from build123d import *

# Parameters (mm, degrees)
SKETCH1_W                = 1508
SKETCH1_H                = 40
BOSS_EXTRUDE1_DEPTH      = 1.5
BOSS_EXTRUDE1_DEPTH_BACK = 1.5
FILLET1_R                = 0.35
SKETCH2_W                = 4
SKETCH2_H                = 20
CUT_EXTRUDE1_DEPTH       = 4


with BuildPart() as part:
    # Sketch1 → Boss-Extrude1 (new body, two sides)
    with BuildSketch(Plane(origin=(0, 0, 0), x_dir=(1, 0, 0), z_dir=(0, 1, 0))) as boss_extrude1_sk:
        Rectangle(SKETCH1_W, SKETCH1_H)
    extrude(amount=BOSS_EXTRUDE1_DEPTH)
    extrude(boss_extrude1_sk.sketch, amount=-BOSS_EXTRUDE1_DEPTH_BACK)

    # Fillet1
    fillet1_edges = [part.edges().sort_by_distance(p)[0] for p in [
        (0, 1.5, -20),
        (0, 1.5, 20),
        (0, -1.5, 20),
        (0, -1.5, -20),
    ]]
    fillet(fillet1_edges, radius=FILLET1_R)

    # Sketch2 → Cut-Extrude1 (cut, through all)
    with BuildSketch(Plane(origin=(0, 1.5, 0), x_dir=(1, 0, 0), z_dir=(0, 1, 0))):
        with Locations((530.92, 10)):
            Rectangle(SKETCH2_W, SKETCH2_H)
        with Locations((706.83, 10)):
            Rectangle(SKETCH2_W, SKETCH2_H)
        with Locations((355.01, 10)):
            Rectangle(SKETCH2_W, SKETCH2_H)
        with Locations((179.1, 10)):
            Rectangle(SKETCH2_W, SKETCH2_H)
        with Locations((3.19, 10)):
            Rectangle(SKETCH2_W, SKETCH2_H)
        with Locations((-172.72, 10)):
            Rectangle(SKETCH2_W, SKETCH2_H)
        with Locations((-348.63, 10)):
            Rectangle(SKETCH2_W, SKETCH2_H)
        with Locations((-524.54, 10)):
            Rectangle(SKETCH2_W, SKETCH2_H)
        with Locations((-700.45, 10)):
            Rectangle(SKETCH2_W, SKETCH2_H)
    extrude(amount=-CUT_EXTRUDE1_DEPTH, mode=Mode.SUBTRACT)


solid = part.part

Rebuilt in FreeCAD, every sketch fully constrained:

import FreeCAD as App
import Part
import Sketcher

V = App.Vector
Q = App.Units.Quantity


def edges_at(feature, points):
    """Names of the edges that pass closest to the given points."""
    edges = feature.Shape.Edges
    near = lambda p: min(range(len(edges)), key=lambda i: edges[i].distToShape(Part.Vertex(*p))[0])
    return sorted({f"Edge{near(p) + 1}" for p in points})

doc = App.newDocument("Part")
body = doc.addObject("PartDesign::Body", "Body")

# Sketch on XZ plane
sketch1 = doc.addObject("Sketcher::SketchObject", "Sketch")
body.addObject(sketch1)
sketch1.AttachmentSupport = (doc.XZ_Plane, [""])
sketch1.MapMode = "FlatFace"
sketch1.addGeometry([
    Part.LineSegment(V(-754, -20, 0), V(-754, 20, 0)),
    Part.LineSegment(V(-754, 20, 0), V(754, 20, 0)),
    Part.LineSegment(V(754, 20, 0), V(754, -20, 0)),
    Part.LineSegment(V(754, -20, 0), V(-754, -20, 0)),
], False)
sketch1.addConstraint([
    Sketcher.Constraint("Coincident", 0, 2, 1, 1),
    Sketcher.Constraint("Coincident", 1, 2, 2, 1),
    Sketcher.Constraint("Coincident", 2, 2, 3, 1),
    Sketcher.Constraint("Coincident", 3, 2, 0, 1),
    Sketcher.Constraint("Vertical", 0),
    Sketcher.Constraint("Horizontal", 1),
    Sketcher.Constraint("Vertical", 2),
    Sketcher.Constraint("Horizontal", 3),
    Sketcher.Constraint("Symmetric", 0, 2, 2, 2, -1, 1),
    Sketcher.Constraint("DistanceX", 1, 1, 1, 2, Q("1508 mm")),
    Sketcher.Constraint("DistanceY", 0, 1, 0, 2, Q("40 mm")),
])
pad1 = doc.addObject("PartDesign::Pad", "Pad")
body.addObject(pad1)
pad1.Profile = sketch1
pad1.Type = "TwoLengths"
pad1.Length = 1.5
pad1.Length2 = 1.5
pad1.Reversed = True
doc.recompute()

fillet = doc.addObject("PartDesign::Fillet", "Fillet")
body.addObject(fillet)
fillet.Base = (pad1, edges_at(pad1, [
    (0, 1.5, -20),
    (0, 1.5, 20),
    (0, -1.5, 20),
    (0, -1.5, -20),
]))
fillet.Radius = 0.35

# Sketch on XZ plane
sketch2 = doc.addObject("Sketcher::SketchObject", "Sketch001")
body.addObject(sketch2)
sketch2.AttachmentSupport = (doc.XZ_Plane, [""])
sketch2.MapMode = "FlatFace"
sketch2.AttachmentOffset = App.Placement(V(0, 0, -1.5), App.Rotation())
sketch2.addGeometry([
    Part.LineSegment(V(528.9, -20, 0), V(528.9, 0, 0)),  # 0
    Part.LineSegment(V(528.9, 0, 0), V(532.9, 0, 0)),  # 1
    Part.LineSegment(V(532.9, 0, 0), V(532.9, -20, 0)),  # 2
    Part.LineSegment(V(532.9, -20, 0), V(528.9, -20, 0)),  # 3
    Part.LineSegment(V(704.8, -20, 0), V(704.8, 0, 0)),  # 4
    Part.LineSegment(V(704.8, 0, 0), V(708.8, 0, 0)),  # 5
    Part.LineSegment(V(708.8, 0, 0), V(708.8, -20, 0)),  # 6
    Part.LineSegment(V(708.8, -20, 0), V(704.8, -20, 0)),  # 7
    Part.LineSegment(V(353, -20, 0), V(353, 0, 0)),  # 8
    Part.LineSegment(V(353, 0, 0), V(357, 0, 0)),  # 9
    Part.LineSegment(V(357, 0, 0), V(357, -20, 0)),  # 10
    Part.LineSegment(V(357, -20, 0), V(353, -20, 0)),  # 11
    Part.LineSegment(V(177.1, -20, 0), V(177.1, 0, 0)),  # 12
    Part.LineSegment(V(177.1, 0, 0), V(181.1, 0, 0)),  # 13
    Part.LineSegment(V(181.1, 0, 0), V(181.1, -20, 0)),  # 14
    Part.LineSegment(V(181.1, -20, 0), V(177.1, -20, 0)),  # 15
    Part.LineSegment(V(1.2, -20, 0), V(1.2, 0, 0)),  # 16
    Part.LineSegment(V(1.2, 0, 0), V(5.2, 0, 0)),  # 17
    Part.LineSegment(V(5.2, 0, 0), V(5.2, -20, 0)),  # 18
    Part.LineSegment(V(5.2, -20, 0), V(1.2, -20, 0)),  # 19
    Part.LineSegment(V(-174.7, -20, 0), V(-174.7, 0, 0)),  # 20
    Part.LineSegment(V(-174.7, 0, 0), V(-170.7, 0, 0)),  # 21
    Part.LineSegment(V(-170.7, 0, 0), V(-170.7, -20, 0)),  # 22
    Part.LineSegment(V(-170.7, -20, 0), V(-174.7, -20, 0)),  # 23
    Part.LineSegment(V(-350.6, -20, 0), V(-350.6, 0, 0)),  # 24
    Part.LineSegment(V(-350.6, 0, 0), V(-346.6, 0, 0)),  # 25
    Part.LineSegment(V(-346.6, 0, 0), V(-346.6, -20, 0)),  # 26
    Part.LineSegment(V(-346.6, -20, 0), V(-350.6, -20, 0)),  # 27
    Part.LineSegment(V(-526.5, -20, 0), V(-526.5, 0, 0)),  # 28
    Part.LineSegment(V(-526.5, 0, 0), V(-522.5, 0, 0)),  # 29
    Part.LineSegment(V(-522.5, 0, 0), V(-522.5, -20, 0)),  # 30
    Part.LineSegment(V(-522.5, -20, 0), V(-526.5, -20, 0)),  # 31
    Part.LineSegment(V(-702.5, -20, 0), V(-702.5, 0, 0)),  # 32
    Part.LineSegment(V(-702.5, 0, 0), V(-698.5, 0, 0)),  # 33
    Part.LineSegment(V(-698.5, 0, 0), V(-698.5, -20, 0)),  # 34
    Part.LineSegment(V(-698.5, -20, 0), V(-702.5, -20, 0)),  # 35
], False)
sketch2.addConstraint([
    Sketcher.Constraint("Coincident", 0, 2, 1, 1),
    Sketcher.Constraint("Coincident", 1, 2, 2, 1),
    Sketcher.Constraint("Coincident", 2, 2, 3, 1),
    Sketcher.Constraint("Coincident", 3, 2, 0, 1),
    Sketcher.Constraint("Coincident", 4, 2, 5, 1),
    Sketcher.Constraint("Coincident", 5, 2, 6, 1),
    Sketcher.Constraint("Coincident", 6, 2, 7, 1),
    Sketcher.Constraint("Coincident", 7, 2, 4, 1),
    Sketcher.Constraint("Coincident", 8, 2, 9, 1),
    Sketcher.Constraint("Coincident", 9, 2, 10, 1),
    Sketcher.Constraint("Coincident", 10, 2, 11, 1),
    Sketcher.Constraint("Coincident", 11, 2, 8, 1),
    Sketcher.Constraint("Coincident", 12, 2, 13, 1),
    Sketcher.Constraint("Coincident", 13, 2, 14, 1),
    Sketcher.Constraint("Coincident", 14, 2, 15, 1),
    Sketcher.Constraint("Coincident", 15, 2, 12, 1),
    Sketcher.Constraint("Coincident", 16, 2, 17, 1),
    Sketcher.Constraint("Coincident", 17, 2, 18, 1),
    Sketcher.Constraint("Coincident", 18, 2, 19, 1),
    Sketcher.Constraint("Coincident", 19, 2, 16, 1),
    Sketcher.Constraint("Coincident", 20, 2, 21, 1),
    Sketcher.Constraint("Coincident", 21, 2, 22, 1),
    Sketcher.Constraint("Coincident", 22, 2, 23, 1),
    Sketcher.Constraint("Coincident", 23, 2, 20, 1),
    Sketcher.Constraint("Coincident", 24, 2, 25, 1),
    Sketcher.Constraint("Coincident", 25, 2, 26, 1),
    Sketcher.Constraint("Coincident", 26, 2, 27, 1),
    Sketcher.Constraint("Coincident", 27, 2, 24, 1),
    Sketcher.Constraint("Coincident", 28, 2, 29, 1),
    Sketcher.Constraint("Coincident", 29, 2, 30, 1),
    Sketcher.Constraint("Coincident", 30, 2, 31, 1),
    Sketcher.Constraint("Coincident", 31, 2, 28, 1),
    Sketcher.Constraint("Coincident", 32, 2, 33, 1),
    Sketcher.Constraint("Coincident", 33, 2, 34, 1),
    Sketcher.Constraint("Coincident", 34, 2, 35, 1),
    Sketcher.Constraint("Coincident", 35, 2, 32, 1),
    Sketcher.Constraint("Vertical", 0),
    Sketcher.Constraint("Horizontal", 1),
    Sketcher.Constraint("Vertical", 2),
    Sketcher.Constraint("Horizontal", 3),
    Sketcher.Constraint("Vertical", 4),
    Sketcher.Constraint("Horizontal", 5),
    Sketcher.Constraint("Vertical", 6),
    Sketcher.Constraint("Horizontal", 7),
    Sketcher.Constraint("Vertical", 8),
    Sketcher.Constraint("Horizontal", 9),
    Sketcher.Constraint("Vertical", 10),
    Sketcher.Constraint("Horizontal", 11),
    Sketcher.Constraint("Vertical", 12),
    Sketcher.Constraint("Horizontal", 13),
    Sketcher.Constraint("Vertical", 14),
    Sketcher.Constraint("Horizontal", 15),
    Sketcher.Constraint("Vertical", 16),
    Sketcher.Constraint("Horizontal", 17),
    Sketcher.Constraint("Vertical", 18),
    Sketcher.Constraint("Horizontal", 19),
    Sketcher.Constraint("Vertical", 20),
    Sketcher.Constraint("Horizontal", 21),
    Sketcher.Constraint("Vertical", 22),
    Sketcher.Constraint("Horizontal", 23),
    Sketcher.Constraint("Vertical", 24),
    Sketcher.Constraint("Horizontal", 25),
    Sketcher.Constraint("Vertical", 26),
    Sketcher.Constraint("Horizontal", 27),
    Sketcher.Constraint("Vertical", 28),
    Sketcher.Constraint("Horizontal", 29),
    Sketcher.Constraint("Vertical", 30),
    Sketcher.Constraint("Horizontal", 31),
    Sketcher.Constraint("Vertical", 32),
    Sketcher.Constraint("Horizontal", 33),
    Sketcher.Constraint("Vertical", 34),
    Sketcher.Constraint("Horizontal", 35),
    Sketcher.Constraint("PointOnObject", 0, 2, -1),
    Sketcher.Constraint("PointOnObject", 4, 2, -1),
    Sketcher.Constraint("PointOnObject", 8, 2, -1),
    Sketcher.Constraint("PointOnObject", 12, 2, -1),
    Sketcher.Constraint("PointOnObject", 16, 2, -1),
    Sketcher.Constraint("PointOnObject", 20, 2, -1),
    Sketcher.Constraint("PointOnObject", 24, 2, -1),
    Sketcher.Constraint("PointOnObject", 28, 2, -1),
    Sketcher.Constraint("PointOnObject", 32, 2, -1),
    Sketcher.Constraint("Horizontal", 3, 2, 6, 2),
    Sketcher.Constraint("Horizontal", 7, 2, 10, 2),
    Sketcher.Constraint("Horizontal", 11, 2, 14, 2),
    Sketcher.Constraint("Horizontal", 15, 2, 18, 2),
    Sketcher.Constraint("Horizontal", 19, 2, 22, 2),
    Sketcher.Constraint("Horizontal", 23, 2, 26, 2),
    Sketcher.Constraint("Horizontal", 27, 2, 30, 2),
    Sketcher.Constraint("Horizontal", 31, 2, 34, 2),
    Sketcher.Constraint("Equal", 3, 5),
    Sketcher.Constraint("Equal", 7, 9),
    Sketcher.Constraint("Equal", 11, 13),
    Sketcher.Constraint("Equal", 15, 17),
    Sketcher.Constraint("Equal", 19, 21),
    Sketcher.Constraint("Equal", 23, 25),
    Sketcher.Constraint("Equal", 27, 29),
    Sketcher.Constraint("Equal", 31, 33),
    Sketcher.Constraint("DistanceX", 1, 1, 1, 2, Q("4 mm")),
    Sketcher.Constraint("DistanceY", 0, 1, 0, 2, Q("20 mm")),
    Sketcher.Constraint("DistanceX", -1, 1, 12, 2, Q("177.1 mm")),
    Sketcher.Constraint("DistanceX", -1, 1, 0, 2, Q("528.92 mm")),
    Sketcher.Constraint("DistanceX", -1, 1, 4, 2, Q("704.83 mm")),
    Sketcher.Constraint("DistanceX", -1, 1, 8, 2, Q("353.01 mm")),
    Sketcher.Constraint("DistanceX", -1, 1, 16, 2, Q("1.19 mm")),
    Sketcher.Constraint("DistanceX", 20, 2, -1, 1, Q("174.72 mm")),
    Sketcher.Constraint("DistanceX", 24, 2, -1, 1, Q("350.63 mm")),
    Sketcher.Constraint("DistanceX", 28, 2, -1, 1, Q("526.54 mm")),
    Sketcher.Constraint("DistanceX", 32, 2, -1, 1, Q("702.45 mm")),
])
pocket1 = doc.addObject("PartDesign::Pocket", "Pocket")
body.addObject(pocket1)
pocket1.Profile = sketch2
pocket1.Type = "ThroughAll"
pocket1.Reversed = True

doc.recompute()
